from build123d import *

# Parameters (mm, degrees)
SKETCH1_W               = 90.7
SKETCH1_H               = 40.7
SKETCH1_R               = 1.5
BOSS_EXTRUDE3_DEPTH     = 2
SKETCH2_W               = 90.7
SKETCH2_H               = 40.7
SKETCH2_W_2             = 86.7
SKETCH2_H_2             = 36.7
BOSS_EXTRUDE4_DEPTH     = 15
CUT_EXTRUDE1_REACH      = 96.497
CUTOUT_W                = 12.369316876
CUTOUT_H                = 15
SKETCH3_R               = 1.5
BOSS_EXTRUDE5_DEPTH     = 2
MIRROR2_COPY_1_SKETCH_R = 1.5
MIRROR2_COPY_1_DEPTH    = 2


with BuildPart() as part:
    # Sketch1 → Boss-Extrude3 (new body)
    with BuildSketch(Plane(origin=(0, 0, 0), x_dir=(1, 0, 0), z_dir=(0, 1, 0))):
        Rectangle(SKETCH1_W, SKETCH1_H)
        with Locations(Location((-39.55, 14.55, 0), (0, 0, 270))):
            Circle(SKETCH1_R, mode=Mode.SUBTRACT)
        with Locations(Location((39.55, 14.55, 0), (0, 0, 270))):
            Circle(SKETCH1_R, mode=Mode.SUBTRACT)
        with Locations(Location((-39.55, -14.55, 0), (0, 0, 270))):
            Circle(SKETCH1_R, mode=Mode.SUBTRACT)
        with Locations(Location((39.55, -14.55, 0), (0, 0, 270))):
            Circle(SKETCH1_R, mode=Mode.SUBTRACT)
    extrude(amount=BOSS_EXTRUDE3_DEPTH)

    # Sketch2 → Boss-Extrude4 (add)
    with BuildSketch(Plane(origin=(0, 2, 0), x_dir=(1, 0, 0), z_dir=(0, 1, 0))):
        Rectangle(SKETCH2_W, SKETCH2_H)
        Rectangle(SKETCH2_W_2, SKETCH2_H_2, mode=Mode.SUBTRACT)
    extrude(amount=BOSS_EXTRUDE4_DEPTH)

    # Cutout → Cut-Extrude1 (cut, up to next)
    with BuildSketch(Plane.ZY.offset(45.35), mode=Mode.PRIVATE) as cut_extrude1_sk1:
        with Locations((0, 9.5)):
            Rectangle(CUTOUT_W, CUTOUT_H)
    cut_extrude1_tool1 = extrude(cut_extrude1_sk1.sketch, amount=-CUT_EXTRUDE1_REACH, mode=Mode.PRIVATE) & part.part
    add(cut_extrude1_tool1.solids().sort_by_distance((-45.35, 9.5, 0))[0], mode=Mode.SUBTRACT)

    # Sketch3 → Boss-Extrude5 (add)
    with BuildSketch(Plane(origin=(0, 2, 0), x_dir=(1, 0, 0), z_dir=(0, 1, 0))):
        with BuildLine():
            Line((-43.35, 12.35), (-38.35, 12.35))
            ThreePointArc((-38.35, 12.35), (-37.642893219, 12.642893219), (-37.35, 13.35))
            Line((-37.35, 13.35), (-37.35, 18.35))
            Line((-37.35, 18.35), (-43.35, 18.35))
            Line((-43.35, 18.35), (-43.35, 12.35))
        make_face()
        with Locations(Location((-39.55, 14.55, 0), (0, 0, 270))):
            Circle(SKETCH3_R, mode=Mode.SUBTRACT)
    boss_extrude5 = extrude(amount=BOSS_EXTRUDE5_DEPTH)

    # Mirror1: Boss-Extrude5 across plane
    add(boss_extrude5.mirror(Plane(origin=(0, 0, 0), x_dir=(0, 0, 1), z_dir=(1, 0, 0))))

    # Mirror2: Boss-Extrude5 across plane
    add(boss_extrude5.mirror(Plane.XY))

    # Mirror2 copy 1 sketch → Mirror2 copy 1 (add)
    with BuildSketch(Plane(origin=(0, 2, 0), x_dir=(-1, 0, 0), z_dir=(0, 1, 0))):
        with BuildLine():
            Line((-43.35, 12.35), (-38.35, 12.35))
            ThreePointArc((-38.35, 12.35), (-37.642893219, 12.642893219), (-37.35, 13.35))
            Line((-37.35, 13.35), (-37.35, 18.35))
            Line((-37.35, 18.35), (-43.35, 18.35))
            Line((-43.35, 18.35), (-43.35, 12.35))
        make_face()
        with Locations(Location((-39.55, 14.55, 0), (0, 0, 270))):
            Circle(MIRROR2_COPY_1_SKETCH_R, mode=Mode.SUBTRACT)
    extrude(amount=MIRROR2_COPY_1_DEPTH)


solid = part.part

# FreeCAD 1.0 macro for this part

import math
import FreeCAD as App
import Part
import Sketcher

V = App.Vector


def add_polygon(sketch, points):
    """Adds a closed chain of lines whose ends are joined by coincident constraints."""
    first, n = sketch.GeometryCount, len(points)
    for a, b in zip(points, points[1:] + points[:1]):
        sketch.addGeometry(Part.LineSegment(App.Vector(*a, 0), App.Vector(*b, 0)), False)
    for i in range(n):
        sketch.addConstraint(Sketcher.Constraint("Coincident", first + i, 2, first + (i + 1) % n, 1))

doc = App.newDocument("Part")
body = doc.addObject("PartDesign::Body", "Body")

sketch1 = doc.addObject("Sketcher::SketchObject", "Sketch")
body.addObject(sketch1)
sketch1.AttachmentSupport = (doc.XZ_Plane, [""])
sketch1.MapMode = "FlatFace"
add_polygon(sketch1, [(-45.35, -20.35), (-45.35, 20.35), (45.35, 20.35), (45.35, -20.35)])
sketch1.addGeometry(Part.Circle(V(-39.55, 14.55, 0), V(0, 0, 1), 1.5), False)
sketch1.addGeometry(Part.Circle(V(39.55, 14.55, 0), V(0, 0, 1), 1.5), False)
sketch1.addGeometry(Part.Circle(V(-39.55, -14.55, 0), V(0, 0, 1), 1.5), False)
sketch1.addGeometry(Part.Circle(V(39.55, -14.55, 0), V(0, 0, 1), 1.5), False)
sketch1.addConstraint(Sketcher.Constraint("Vertical", 0))
sketch1.addConstraint(Sketcher.Constraint("Horizontal", 1))
sketch1.addConstraint(Sketcher.Constraint("Vertical", 2))
sketch1.addConstraint(Sketcher.Constraint("Horizontal", 3))
sketch1.addConstraint(Sketcher.Constraint("Equal", 4, 5))
sketch1.addConstraint(Sketcher.Constraint("Equal", 5, 6))
sketch1.addConstraint(Sketcher.Constraint("Equal", 6, 7))
sketch1.addConstraint(Sketcher.Constraint("Symmetric", 5, 3, 6, 3, -1, 1))
sketch1.addConstraint(Sketcher.Constraint("Symmetric", 4, 3, 7, 3, -1, 1))
sketch1.addConstraint(Sketcher.Constraint("Symmetric", 0, 2, 2, 2, -1, 1))
sketch1.addConstraint(Sketcher.Constraint("Symmetric", 4, 3, 5, 3, -2))
sketch1.addConstraint(Sketcher.Constraint("Diameter", 4, 3.0))
sketch1.addConstraint(Sketcher.Constraint("DistanceX", 1, 1, 1, 2, 90.7))
sketch1.addConstraint(Sketcher.Constraint("DistanceY", 0, 1, 0, 2, 40.7))
sketch1.addConstraint(Sketcher.Constraint("DistanceX", 4, 3, 5, 3, 79.1))
sketch1.addConstraint(Sketcher.Constraint("DistanceY", 6, 3, 4, 3, 29.1))
pad1 = doc.addObject("PartDesign::Pad", "Pad")
body.addObject(pad1)
pad1.Profile = sketch1
pad1.Length = 2
pad1.Reversed = True

sketch2 = doc.addObject("Sketcher::SketchObject", "Sketch001")
body.addObject(sketch2)
sketch2.AttachmentSupport = (doc.XZ_Plane, [""])
sketch2.MapMode = "FlatFace"
sketch2.AttachmentOffset = App.Placement(V(0, 0, -2), App.Rotation())
add_polygon(sketch2, [(-45.35, -20.35), (-45.35, 20.35), (45.35, 20.35), (45.35, -20.35)])
add_polygon(sketch2, [(43.35, 18.35), (-43.35, 18.35), (-43.35, -18.35), (43.35, -18.35)])
sketch2.addConstraint(Sketcher.Constraint("Vertical", 0))
sketch2.addConstraint(Sketcher.Constraint("Horizontal", 1))
sketch2.addConstraint(Sketcher.Constraint("Vertical", 2))
sketch2.addConstraint(Sketcher.Constraint("Horizontal", 3))
sketch2.addConstraint(Sketcher.Constraint("Horizontal", 4))
sketch2.addConstraint(Sketcher.Constraint("Vertical", 5))
sketch2.addConstraint(Sketcher.Constraint("Horizontal", 6))
sketch2.addConstraint(Sketcher.Constraint("Vertical", 7))
sketch2.addConstraint(Sketcher.Constraint("Symmetric", 0, 2, 2, 2, -1, 1))
sketch2.addConstraint(Sketcher.Constraint("Symmetric", 4, 2, 6, 2, -1, 1))
sketch2.addConstraint(Sketcher.Constraint("DistanceX", 1, 1, 1, 2, 90.7))
sketch2.addConstraint(Sketcher.Constraint("DistanceX", 4, 2, 4, 1, 86.7))
sketch2.addConstraint(Sketcher.Constraint("DistanceY", 0, 1, 0, 2, 40.7))
sketch2.addConstraint(Sketcher.Constraint("DistanceY", 5, 2, 5, 1, 36.7))
pad2 = doc.addObject("PartDesign::Pad", "Pad001")
body.addObject(pad2)
pad2.Profile = sketch2
pad2.Length = 15
pad2.Reversed = True

sketch3 = doc.addObject("Sketcher::SketchObject", "Sketch002")
body.addObject(sketch3)
sketch3.AttachmentSupport = (doc.YZ_Plane, [""])
sketch3.MapMode = "FlatFace"
sketch3.AttachmentOffset = App.Placement(V(0, 0, -45.35), App.Rotation())
add_polygon(sketch3, [(17, -6.184658), (2, -6.184658), (2, 6.184658), (17, 6.184658)])
sketch3.addConstraint(Sketcher.Constraint("Horizontal", 0))
sketch3.addConstraint(Sketcher.Constraint("Vertical", 1))
sketch3.addConstraint(Sketcher.Constraint("Horizontal", 2))
sketch3.addConstraint(Sketcher.Constraint("Vertical", 3))
sketch3.addConstraint(Sketcher.Constraint("DistanceX", 0, 2, 0, 1, 15.0))
sketch3.addConstraint(Sketcher.Constraint("DistanceX", -1, 1, 0, 2, 2.0))
sketch3.addConstraint(Sketcher.Constraint("DistanceY", 1, 1, 1, 2, 12.369317))
sketch3.addConstraint(Sketcher.Constraint("DistanceY", 0, 2, -1, 1, 6.184658))
pocket1 = doc.addObject("PartDesign::Pocket", "Pocket")
body.addObject(pocket1)
pocket1.Profile = sketch3
pocket1.Type = "UpToFirst"
pocket1.Reversed = True

sketch4 = doc.addObject("Sketcher::SketchObject", "Sketch003")
body.addObject(sketch4)
sketch4.AttachmentSupport = (doc.XZ_Plane, [""])
sketch4.MapMode = "FlatFace"
sketch4.AttachmentOffset = App.Placement(V(0, 0, -2), App.Rotation())
sketch4.addGeometry(Part.LineSegment(V(-43.35, -12.35, 0), V(-38.35, -12.35, 0)), False)
sketch4.addGeometry(Part.ArcOfCircle(Part.Circle(V(-38.35, -13.35, 0), V(0, 0, 1), 1), math.radians(0), math.radians(90)), False)
sketch4.addGeometry(Part.LineSegment(V(-37.35, -13.35, 0), V(-37.35, -18.35, 0)), False)
sketch4.addGeometry(Part.LineSegment(V(-37.35, -18.35, 0), V(-43.35, -18.35, 0)), False)
sketch4.addGeometry(Part.LineSegment(V(-43.35, -18.35, 0), V(-43.35, -12.35, 0)), False)
sketch4.addGeometry(Part.Circle(V(-39.55, -14.55, 0), V(0, 0, 1), 1.5), False)
sketch4.addConstraint(Sketcher.Constraint("Tangent", 0, 2, 1, 2))
sketch4.addConstraint(Sketcher.Constraint("Tangent", 1, 1, 2, 1))
sketch4.addConstraint(Sketcher.Constraint("Coincident", 2, 2, 3, 1))
sketch4.addConstraint(Sketcher.Constraint("Coincident", 3, 2, 4, 1))
sketch4.addConstraint(Sketcher.Constraint("Coincident", 4, 2, 0, 1))
sketch4.addConstraint(Sketcher.Constraint("Horizontal", 0))
sketch4.addConstraint(Sketcher.Constraint("Vertical", 2))
sketch4.addConstraint(Sketcher.Constraint("Horizontal", 3))
sketch4.addConstraint(Sketcher.Constraint("Vertical", 4))
sketch4.addConstraint(Sketcher.Constraint("Equal", 0, 2))
sketch4.addConstraint(Sketcher.Constraint("Diameter", 5, 3.0))
sketch4.addConstraint(Sketcher.Constraint("Radius", 1, 1.0))
sketch4.addConstraint(Sketcher.Constraint("DistanceX", 0, 1, 0, 2, 5.0))
sketch4.addConstraint(Sketcher.Constraint("DistanceX", 5, 3, 1, 3, 1.2))
sketch4.addConstraint(Sketcher.Constraint("DistanceY", 5, 3, 1, 3, 1.2))
sketch4.addConstraint(Sketcher.Constraint("DistanceX", 1, 3, -1, 1, 38.35))
sketch4.addConstraint(Sketcher.Constraint("DistanceY", 1, 3, -1, 1, 13.35))
pad3 = doc.addObject("PartDesign::Pad", "Pad002")
body.addObject(pad3)
pad3.Profile = sketch4
pad3.Length = 2
pad3.Reversed = True
doc.recompute()

mirrored = doc.addObject("PartDesign::Mirrored", "Mirrored")
body.addObject(mirrored)
mirrored.Originals = [pad3]
mirrored.MirrorPlane = (doc.YZ_Plane, [""])
body.Tip = mirrored
doc.recompute()

mirrored2 = doc.addObject("PartDesign::Mirrored", "Mirrored001")
body.addObject(mirrored2)
mirrored2.Originals = [pad3]
mirrored2.MirrorPlane = (doc.XY_Plane, [""])
body.Tip = mirrored2

sketch5 = doc.addObject("Sketcher::SketchObject", "Sketch004")
body.addObject(sketch5)
sketch5.AttachmentSupport = (doc.XZ_Plane, [""])
sketch5.MapMode = "FlatFace"
sketch5.AttachmentOffset = App.Placement(V(0, 0, -2), App.Rotation())
sketch5.addGeometry(Part.LineSegment(V(43.35, 12.35, 0), V(38.35, 12.35, 0)), False)
sketch5.addGeometry(Part.ArcOfCircle(Part.Circle(V(38.35, 13.35, 0), V(0, 0, 1), 1), math.radians(-180), math.radians(-90)), False)
sketch5.addGeometry(Part.LineSegment(V(37.35, 13.35, 0), V(37.35, 18.35, 0)), False)
sketch5.addGeometry(Part.LineSegment(V(37.35, 18.35, 0), V(43.35, 18.35, 0)), False)
sketch5.addGeometry(Part.LineSegment(V(43.35, 18.35, 0), V(43.35, 12.35, 0)), False)
sketch5.addGeometry(Part.Circle(V(39.55, 14.55, 0), V(0, 0, 1), 1.5), False)
sketch5.addConstraint(Sketcher.Constraint("Tangent", 0, 2, 1, 2))
sketch5.addConstraint(Sketcher.Constraint("Tangent", 1, 1, 2, 1))
sketch5.addConstraint(Sketcher.Constraint("Coincident", 2, 2, 3, 1))
sketch5.addConstraint(Sketcher.Constraint("Coincident", 3, 2, 4, 1))
sketch5.addConstraint(Sketcher.Constraint("Coincident", 4, 2, 0, 1))
sketch5.addConstraint(Sketcher.Constraint("Horizontal", 0))
sketch5.addConstraint(Sketcher.Constraint("Vertical", 2))
sketch5.addConstraint(Sketcher.Constraint("Horizontal", 3))
sketch5.addConstraint(Sketcher.Constraint("Vertical", 4))
sketch5.addConstraint(Sketcher.Constraint("Equal", 0, 2))
sketch5.addConstraint(Sketcher.Constraint("Diameter", 5, 3.0))
sketch5.addConstraint(Sketcher.Constraint("Radius", 1, 1.0))
sketch5.addConstraint(Sketcher.Constraint("DistanceX", 0, 2, 0, 1, 5.0))
sketch5.addConstraint(Sketcher.Constraint("DistanceX", 1, 3, 5, 3, 1.2))
sketch5.addConstraint(Sketcher.Constraint("DistanceY", 1, 3, 5, 3, 1.2))
sketch5.addConstraint(Sketcher.Constraint("DistanceX", -1, 1, 1, 3, 38.35))
sketch5.addConstraint(Sketcher.Constraint("DistanceY", -1, 1, 1, 3, 13.35))
pad4 = doc.addObject("PartDesign::Pad", "Pad003")
body.addObject(pad4)
pad4.Profile = sketch5
pad4.Length = 2
pad4.Reversed = True

doc.recompute()
